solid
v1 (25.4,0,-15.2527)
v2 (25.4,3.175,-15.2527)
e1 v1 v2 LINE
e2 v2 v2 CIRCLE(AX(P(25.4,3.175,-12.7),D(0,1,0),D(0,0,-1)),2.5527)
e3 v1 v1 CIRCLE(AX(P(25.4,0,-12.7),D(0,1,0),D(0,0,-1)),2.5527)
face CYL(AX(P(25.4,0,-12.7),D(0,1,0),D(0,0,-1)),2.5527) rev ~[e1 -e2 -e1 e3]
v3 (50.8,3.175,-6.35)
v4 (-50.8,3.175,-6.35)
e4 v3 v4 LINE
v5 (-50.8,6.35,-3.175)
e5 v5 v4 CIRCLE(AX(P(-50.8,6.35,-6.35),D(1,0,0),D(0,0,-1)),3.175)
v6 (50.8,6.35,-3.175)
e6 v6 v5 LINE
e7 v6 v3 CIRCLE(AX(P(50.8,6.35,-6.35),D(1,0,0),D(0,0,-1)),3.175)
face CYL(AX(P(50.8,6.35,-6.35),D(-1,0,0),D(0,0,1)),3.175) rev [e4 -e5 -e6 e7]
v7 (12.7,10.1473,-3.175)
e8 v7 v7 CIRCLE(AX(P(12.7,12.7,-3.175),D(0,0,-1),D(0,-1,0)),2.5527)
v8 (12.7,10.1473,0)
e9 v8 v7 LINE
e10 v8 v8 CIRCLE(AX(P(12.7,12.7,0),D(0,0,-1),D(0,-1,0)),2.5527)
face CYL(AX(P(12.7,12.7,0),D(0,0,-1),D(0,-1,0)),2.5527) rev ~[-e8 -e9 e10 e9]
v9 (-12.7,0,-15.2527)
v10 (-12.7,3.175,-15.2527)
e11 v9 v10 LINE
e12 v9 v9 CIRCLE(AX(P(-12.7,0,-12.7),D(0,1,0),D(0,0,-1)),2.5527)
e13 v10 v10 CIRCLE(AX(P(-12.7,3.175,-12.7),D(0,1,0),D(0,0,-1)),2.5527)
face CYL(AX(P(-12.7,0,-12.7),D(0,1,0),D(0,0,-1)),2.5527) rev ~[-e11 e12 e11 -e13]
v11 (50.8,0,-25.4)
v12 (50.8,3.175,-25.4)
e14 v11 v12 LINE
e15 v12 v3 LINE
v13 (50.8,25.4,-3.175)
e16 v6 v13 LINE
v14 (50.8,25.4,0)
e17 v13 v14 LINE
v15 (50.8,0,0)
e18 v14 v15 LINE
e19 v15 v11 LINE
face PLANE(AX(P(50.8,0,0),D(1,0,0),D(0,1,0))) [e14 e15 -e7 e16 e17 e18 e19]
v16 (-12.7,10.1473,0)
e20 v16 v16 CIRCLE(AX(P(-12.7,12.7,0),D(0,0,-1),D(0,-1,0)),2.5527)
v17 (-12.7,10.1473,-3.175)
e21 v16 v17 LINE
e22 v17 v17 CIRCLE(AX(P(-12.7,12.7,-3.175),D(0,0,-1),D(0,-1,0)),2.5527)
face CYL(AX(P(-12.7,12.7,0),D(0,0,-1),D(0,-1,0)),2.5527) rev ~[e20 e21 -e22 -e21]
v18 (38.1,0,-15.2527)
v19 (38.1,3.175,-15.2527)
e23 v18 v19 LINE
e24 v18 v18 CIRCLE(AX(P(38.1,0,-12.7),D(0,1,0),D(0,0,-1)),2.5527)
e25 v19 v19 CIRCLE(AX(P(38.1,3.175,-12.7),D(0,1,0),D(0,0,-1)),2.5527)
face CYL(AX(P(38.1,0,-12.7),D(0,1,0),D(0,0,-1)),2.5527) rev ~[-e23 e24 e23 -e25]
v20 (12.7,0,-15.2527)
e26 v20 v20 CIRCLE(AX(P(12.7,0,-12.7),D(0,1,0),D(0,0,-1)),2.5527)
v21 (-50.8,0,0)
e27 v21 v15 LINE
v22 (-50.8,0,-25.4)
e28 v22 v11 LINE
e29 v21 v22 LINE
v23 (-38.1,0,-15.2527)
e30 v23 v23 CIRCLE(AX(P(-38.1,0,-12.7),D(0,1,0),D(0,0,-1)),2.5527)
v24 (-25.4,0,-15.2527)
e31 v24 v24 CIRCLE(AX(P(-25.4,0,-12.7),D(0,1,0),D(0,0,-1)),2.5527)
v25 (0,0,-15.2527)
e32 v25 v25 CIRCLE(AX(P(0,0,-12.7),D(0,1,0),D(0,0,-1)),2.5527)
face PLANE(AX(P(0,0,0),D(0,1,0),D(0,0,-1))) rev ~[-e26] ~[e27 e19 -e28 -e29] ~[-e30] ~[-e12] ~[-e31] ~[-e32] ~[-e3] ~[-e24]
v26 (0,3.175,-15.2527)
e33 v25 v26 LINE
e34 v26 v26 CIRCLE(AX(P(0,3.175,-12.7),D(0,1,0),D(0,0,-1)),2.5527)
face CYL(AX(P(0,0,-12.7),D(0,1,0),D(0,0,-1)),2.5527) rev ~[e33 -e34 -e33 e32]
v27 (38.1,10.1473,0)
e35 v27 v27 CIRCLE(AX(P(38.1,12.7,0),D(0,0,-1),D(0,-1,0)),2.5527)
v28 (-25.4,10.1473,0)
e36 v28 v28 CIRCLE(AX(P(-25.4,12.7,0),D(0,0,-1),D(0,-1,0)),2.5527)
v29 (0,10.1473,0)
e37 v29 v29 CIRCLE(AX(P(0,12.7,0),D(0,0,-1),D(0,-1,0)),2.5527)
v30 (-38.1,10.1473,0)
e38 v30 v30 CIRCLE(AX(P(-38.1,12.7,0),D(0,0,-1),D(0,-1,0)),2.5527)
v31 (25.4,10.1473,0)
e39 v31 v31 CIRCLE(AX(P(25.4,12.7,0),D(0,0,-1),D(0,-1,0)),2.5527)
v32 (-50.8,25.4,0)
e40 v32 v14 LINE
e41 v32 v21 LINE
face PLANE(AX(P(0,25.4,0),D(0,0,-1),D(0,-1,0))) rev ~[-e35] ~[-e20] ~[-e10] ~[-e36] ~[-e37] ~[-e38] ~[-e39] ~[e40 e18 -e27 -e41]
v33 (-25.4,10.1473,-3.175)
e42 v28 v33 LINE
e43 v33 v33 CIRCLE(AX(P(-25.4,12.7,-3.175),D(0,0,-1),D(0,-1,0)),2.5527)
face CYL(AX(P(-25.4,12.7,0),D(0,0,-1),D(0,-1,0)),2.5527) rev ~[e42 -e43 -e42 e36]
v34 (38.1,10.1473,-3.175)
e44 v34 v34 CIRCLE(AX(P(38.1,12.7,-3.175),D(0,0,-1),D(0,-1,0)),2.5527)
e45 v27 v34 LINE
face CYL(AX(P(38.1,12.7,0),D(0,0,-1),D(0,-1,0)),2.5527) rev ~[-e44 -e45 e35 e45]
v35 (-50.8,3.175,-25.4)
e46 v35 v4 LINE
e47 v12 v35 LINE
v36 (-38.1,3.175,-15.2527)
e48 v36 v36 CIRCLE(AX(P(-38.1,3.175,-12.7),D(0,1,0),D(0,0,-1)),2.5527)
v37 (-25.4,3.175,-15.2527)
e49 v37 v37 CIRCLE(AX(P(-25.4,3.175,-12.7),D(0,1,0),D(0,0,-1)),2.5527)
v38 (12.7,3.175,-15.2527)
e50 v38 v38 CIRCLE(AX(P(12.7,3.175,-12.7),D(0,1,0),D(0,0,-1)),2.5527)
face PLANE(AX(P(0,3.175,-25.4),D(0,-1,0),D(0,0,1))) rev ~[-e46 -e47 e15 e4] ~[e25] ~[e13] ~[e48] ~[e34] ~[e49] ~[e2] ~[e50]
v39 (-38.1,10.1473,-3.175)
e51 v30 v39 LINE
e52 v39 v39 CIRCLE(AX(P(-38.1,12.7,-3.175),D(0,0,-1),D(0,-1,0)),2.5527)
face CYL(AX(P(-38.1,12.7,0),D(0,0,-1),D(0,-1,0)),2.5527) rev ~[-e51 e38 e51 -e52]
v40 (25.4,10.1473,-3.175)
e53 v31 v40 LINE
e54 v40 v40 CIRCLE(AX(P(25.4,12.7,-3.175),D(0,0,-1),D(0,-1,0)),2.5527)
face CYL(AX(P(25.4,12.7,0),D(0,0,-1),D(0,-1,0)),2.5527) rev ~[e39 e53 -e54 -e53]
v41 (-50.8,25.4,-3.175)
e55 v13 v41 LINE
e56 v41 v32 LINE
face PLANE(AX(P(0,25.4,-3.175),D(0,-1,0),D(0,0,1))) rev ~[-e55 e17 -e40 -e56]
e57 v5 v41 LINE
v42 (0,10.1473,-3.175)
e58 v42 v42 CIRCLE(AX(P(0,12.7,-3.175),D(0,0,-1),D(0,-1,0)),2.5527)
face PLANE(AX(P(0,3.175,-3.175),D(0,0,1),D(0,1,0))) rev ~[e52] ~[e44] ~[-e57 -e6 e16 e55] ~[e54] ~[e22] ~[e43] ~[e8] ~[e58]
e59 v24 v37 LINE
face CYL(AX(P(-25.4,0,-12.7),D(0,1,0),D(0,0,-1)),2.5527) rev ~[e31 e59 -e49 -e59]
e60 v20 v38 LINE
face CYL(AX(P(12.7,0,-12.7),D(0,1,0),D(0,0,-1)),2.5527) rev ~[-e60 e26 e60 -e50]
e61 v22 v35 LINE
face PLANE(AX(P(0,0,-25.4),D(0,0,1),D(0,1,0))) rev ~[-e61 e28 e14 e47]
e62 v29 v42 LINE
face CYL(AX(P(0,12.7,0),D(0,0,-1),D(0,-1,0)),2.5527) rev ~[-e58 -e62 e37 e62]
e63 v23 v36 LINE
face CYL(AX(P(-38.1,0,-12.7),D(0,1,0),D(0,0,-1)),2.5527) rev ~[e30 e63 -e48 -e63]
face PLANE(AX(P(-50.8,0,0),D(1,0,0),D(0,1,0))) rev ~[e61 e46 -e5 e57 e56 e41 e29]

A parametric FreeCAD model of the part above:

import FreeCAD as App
import Part
import Sketcher
from FreeCAD import Vector
Q = App.Units.Quantity


def edges_at(feature, points):
    """Names of the edges that pass closest to the given points."""
    edges = feature.Shape.Edges
    near = lambda p: min(range(len(edges)), key=lambda i: edges[i].distToShape(Part.Vertex(*p))[0])
    return sorted({f"Edge{near(p) + 1}" for p in points})


def add_polygon(sketch, points):
    """Adds a closed chain of lines whose ends are joined by coincident constraints."""
    first, n = sketch.GeometryCount, len(points)
    for a, b in zip(points, points[1:] + points[:1]):
        sketch.addGeometry(Part.LineSegment(App.Vector(*a, 0), App.Vector(*b, 0)), False)
    for i in range(n):
        sketch.addConstraint(Sketcher.Constraint("Coincident", first + i, 2, first + (i + 1) % n, 1))

doc = App.newDocument("Part")
body = doc.addObject("PartDesign::Body", "Body")

# Sketch on YZ plane
sketch1 = doc.addObject("Sketcher::SketchObject", "Sketch")
body.addObject(sketch1)
sketch1.AttachmentSupport = (doc.YZ_Plane, [""])
sketch1.MapMode = "FlatFace"
add_polygon(sketch1, [(25.4, -3.2), (25.4, 0), (0, 0), (0, -25.4), (3.2, -25.4), (3.2, -3.2)])  # lines 0-5
sketch1.addConstraint([
    Sketcher.Constraint("Vertical", 0),
    Sketcher.Constraint("Horizontal", 1),
    Sketcher.Constraint("Vertical", 2),
    Sketcher.Constraint("Horizontal", 3),
    Sketcher.Constraint("Vertical", 4),
    Sketcher.Constraint("Horizontal", 5),
    Sketcher.Constraint("Coincident", 1, 2, -1, 1),
    Sketcher.Constraint("Equal", 3, 0),
    Sketcher.Constraint("Equal", 1, 2),
    Sketcher.Constraint("DistanceX", 1, 2, 1, 1, Q("1 in")),
    Sketcher.Constraint("DistanceX", 3, 1, 3, 2, Q("0.125 in")),
])
pad1 = doc.addObject("PartDesign::Pad", "Pad")
body.addObject(pad1)
pad1.Profile = sketch1
pad1.Length = Q("4 in")
pad1.Midplane = True
doc.recompute()

fillet = doc.addObject("PartDesign::Fillet", "Fillet")
body.addObject(fillet)
fillet.Base = (pad1, edges_at(pad1, [(0, 3.175, -3.175)]))
fillet.Radius = Q("0.125 in")

# Sketch on XY plane
sketch2 = doc.addObject("Sketcher::SketchObject", "Sketch001")
body.addObject(sketch2)
sketch2.AttachmentSupport = (doc.XY_Plane, [""])
sketch2.MapMode = "FlatFace"
sketch2.addGeometry([
    Part.Circle(Vector(-38.1, 12.7, 0), Vector(0, 0, 1), 2.6),  # 0
    Part.Circle(Vector(-25.4, 12.7, 0), Vector(0, 0, 1), 2.6),  # 1
    Part.Circle(Vector(-12.7, 12.7, 0), Vector(0, 0, 1), 2.6),  # 2
    Part.Circle(Vector(0, 12.7, 0), Vector(0, 0, 1), 2.6),  # 3
    Part.Circle(Vector(12.7, 12.7, 0), Vector(0, 0, 1), 2.6),  # 4
    Part.Circle(Vector(25.4, 12.7, 0), Vector(0, 0, 1), 2.6),  # 5
    Part.Circle(Vector(38.1, 12.7, 0), Vector(0, 0, 1), 2.6),  # 6
], False)
sketch2.addConstraint([
    Sketcher.Constraint("Equal", 0, 1),
    Sketcher.Constraint("Equal", 1, 2),
    Sketcher.Constraint("Equal", 2, 3),
    Sketcher.Constraint("Equal", 3, 4),
    Sketcher.Constraint("Equal", 4, 5),
    Sketcher.Constraint("Equal", 5, 6),
    Sketcher.Constraint("Symmetric", 2, 3, 4, 3, -2),
    Sketcher.Constraint("Symmetric", 1, 3, 5, 3, -2),
    Sketcher.Constraint("Symmetric", 0, 3, 6, 3, -2),
    Sketcher.Constraint("PointOnObject", 3, 3, -2),
    Sketcher.Constraint("Horizontal", 0, 3, 1, 3),
    Sketcher.Constraint("Horizontal", 1, 3, 2, 3),
    Sketcher.Constraint("Horizontal", 2, 3, 3, 3),
    Sketcher.Constraint("Diameter", 0, Q("0.201 in")),
    Sketcher.Constraint("DistanceX", 1, 3, -1, 1, Q("1 in")),
    Sketcher.Constraint("DistanceX", 0, 3, 2, 3, Q("1 in")),
    Sketcher.Constraint("DistanceX", 2, 3, 4, 3, Q("1 in")),
    Sketcher.Constraint("DistanceY", -1, 1, 0, 3, Q("0.5 in")),
])
doc.recompute()
hole = doc.addObject("PartDesign::Hole", "Hole")
body.addObject(hole)
hole.Profile = sketch2
hole.ThreadType = "None"
hole.Diameter = Q("0.201 in")
hole.DepthType = "ThroughAll"

# Sketch on XZ plane
sketch3 = doc.addObject("Sketcher::SketchObject", "Sketch002")
body.addObject(sketch3)
sketch3.AttachmentSupport = (doc.XZ_Plane, [""])
sketch3.MapMode = "FlatFace"
sketch3.addGeometry([
    Part.Circle(Vector(-38.1, -12.7, 0), Vector(0, 0, 1), 2.6),  # 0
    Part.Circle(Vector(-25.4, -12.7, 0), Vector(0, 0, 1), 2.6),  # 1
    Part.Circle(Vector(-12.7, -12.7, 0), Vector(0, 0, 1), 2.6),  # 2
    Part.Circle(Vector(0, -12.7, 0), Vector(0, 0, 1), 2.6),  # 3
    Part.Circle(Vector(12.7, -12.7, 0), Vector(0, 0, 1), 2.6),  # 4
    Part.Circle(Vector(25.4, -12.7, 0), Vector(0, 0, 1), 2.6),  # 5
    Part.Circle(Vector(38.1, -12.7, 0), Vector(0, 0, 1), 2.6),  # 6
], False)
sketch3.addConstraint([
    Sketcher.Constraint("Equal", 0, 1),
    Sketcher.Constraint("Equal", 1, 2),
    Sketcher.Constraint("Equal", 2, 3),
    Sketcher.Constraint("Equal", 3, 4),
    Sketcher.Constraint("Equal", 4, 5),
    Sketcher.Constraint("Equal", 5, 6),
    Sketcher.Constraint("Symmetric", 2, 3, 4, 3, -2),
    Sketcher.Constraint("Symmetric", 1, 3, 5, 3, -2),
    Sketcher.Constraint("Symmetric", 0, 3, 6, 3, -2),
    Sketcher.Constraint("PointOnObject", 3, 3, -2),
    Sketcher.Constraint("Horizontal", 0, 3, 1, 3),
    Sketcher.Constraint("Horizontal", 1, 3, 2, 3),
    Sketcher.Constraint("Horizontal", 2, 3, 3, 3),
    Sketcher.Constraint("Diameter", 0, Q("0.201 in")),
    Sketcher.Constraint("DistanceX", 1, 3, -1, 1, Q("1 in")),
    Sketcher.Constraint("DistanceX", 0, 3, 2, 3, Q("1 in")),
    Sketcher.Constraint("DistanceX", 2, 3, 4, 3, Q("1 in")),
    Sketcher.Constraint("DistanceY", 0, 3, -1, 1, Q("0.5 in")),
])
doc.recompute()
hole2 = doc.addObject("PartDesign::Hole", "Hole001")
body.addObject(hole2)
hole2.Profile = sketch3
hole2.ThreadType = "None"
hole2.Diameter = Q("0.201 in")
hole2.DepthType = "ThroughAll"

doc.recompute()
